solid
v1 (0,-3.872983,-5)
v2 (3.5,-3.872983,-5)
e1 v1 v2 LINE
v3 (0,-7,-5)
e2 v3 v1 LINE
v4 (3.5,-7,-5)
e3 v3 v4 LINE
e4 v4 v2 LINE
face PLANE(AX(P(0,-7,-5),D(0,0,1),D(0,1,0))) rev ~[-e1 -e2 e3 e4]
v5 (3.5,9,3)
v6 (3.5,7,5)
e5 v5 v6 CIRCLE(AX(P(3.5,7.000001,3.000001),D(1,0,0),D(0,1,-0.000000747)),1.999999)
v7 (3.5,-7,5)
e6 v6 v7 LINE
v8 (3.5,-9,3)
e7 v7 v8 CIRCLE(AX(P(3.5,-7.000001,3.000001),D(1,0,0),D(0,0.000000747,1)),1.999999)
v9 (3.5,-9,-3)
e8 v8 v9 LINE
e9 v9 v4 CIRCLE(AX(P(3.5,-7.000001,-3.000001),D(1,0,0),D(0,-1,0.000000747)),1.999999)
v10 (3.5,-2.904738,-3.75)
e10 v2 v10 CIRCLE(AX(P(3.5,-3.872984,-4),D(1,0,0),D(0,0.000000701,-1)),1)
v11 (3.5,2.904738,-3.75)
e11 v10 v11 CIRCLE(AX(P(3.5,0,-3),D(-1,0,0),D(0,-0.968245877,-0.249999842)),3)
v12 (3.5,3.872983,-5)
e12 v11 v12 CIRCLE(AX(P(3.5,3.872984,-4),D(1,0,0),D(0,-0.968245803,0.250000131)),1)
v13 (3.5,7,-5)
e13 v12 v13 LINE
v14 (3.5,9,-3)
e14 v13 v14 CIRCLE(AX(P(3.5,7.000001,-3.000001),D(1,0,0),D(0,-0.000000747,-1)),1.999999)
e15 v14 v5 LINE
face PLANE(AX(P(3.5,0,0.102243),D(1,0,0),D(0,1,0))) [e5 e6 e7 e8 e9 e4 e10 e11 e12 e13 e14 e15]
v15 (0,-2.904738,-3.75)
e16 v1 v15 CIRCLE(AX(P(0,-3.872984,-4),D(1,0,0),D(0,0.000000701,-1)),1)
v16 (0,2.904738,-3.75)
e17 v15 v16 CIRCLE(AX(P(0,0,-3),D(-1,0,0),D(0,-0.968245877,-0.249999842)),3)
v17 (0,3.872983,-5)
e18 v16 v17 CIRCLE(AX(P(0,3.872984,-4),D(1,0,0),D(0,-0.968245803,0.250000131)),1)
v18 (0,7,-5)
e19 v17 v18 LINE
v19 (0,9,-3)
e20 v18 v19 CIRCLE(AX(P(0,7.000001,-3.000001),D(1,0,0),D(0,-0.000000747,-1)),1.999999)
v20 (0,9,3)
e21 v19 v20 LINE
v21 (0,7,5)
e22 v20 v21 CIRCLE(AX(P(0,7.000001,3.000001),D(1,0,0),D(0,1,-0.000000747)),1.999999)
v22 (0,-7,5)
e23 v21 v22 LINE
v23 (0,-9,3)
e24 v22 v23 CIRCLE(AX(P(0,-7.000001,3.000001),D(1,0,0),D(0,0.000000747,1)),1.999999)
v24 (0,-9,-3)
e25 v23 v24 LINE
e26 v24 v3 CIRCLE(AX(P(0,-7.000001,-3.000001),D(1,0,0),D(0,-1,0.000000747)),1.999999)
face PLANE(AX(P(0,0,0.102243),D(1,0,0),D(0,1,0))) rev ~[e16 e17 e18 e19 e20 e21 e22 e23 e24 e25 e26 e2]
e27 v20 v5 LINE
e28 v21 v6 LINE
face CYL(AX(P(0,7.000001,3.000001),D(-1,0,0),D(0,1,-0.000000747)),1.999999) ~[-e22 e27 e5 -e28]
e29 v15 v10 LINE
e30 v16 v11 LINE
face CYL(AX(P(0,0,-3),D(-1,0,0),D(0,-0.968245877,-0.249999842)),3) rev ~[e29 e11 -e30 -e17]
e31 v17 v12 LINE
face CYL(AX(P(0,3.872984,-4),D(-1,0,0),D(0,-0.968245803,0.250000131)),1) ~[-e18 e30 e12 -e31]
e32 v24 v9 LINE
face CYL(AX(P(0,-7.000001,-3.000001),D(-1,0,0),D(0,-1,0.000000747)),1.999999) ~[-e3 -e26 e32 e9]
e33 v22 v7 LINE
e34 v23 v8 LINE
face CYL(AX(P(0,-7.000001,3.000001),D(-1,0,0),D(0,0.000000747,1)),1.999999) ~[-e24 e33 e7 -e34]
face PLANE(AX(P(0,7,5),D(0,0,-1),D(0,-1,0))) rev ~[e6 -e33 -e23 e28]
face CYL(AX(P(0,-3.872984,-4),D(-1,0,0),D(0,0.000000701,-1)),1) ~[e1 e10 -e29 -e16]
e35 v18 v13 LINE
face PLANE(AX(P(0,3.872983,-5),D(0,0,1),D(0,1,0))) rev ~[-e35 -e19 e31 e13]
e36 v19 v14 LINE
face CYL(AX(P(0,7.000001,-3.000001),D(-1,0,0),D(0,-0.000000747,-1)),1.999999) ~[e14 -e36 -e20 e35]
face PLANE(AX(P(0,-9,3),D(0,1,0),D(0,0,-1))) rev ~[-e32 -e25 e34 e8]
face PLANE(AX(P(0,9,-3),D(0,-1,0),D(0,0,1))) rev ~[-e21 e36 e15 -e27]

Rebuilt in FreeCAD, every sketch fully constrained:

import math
import FreeCAD as App
import Part
import Sketcher

V = App.Vector
Q = App.Units.Quantity

doc = App.newDocument("Part")
body = doc.addObject("PartDesign::Body", "Body")

# Sketch on YZ plane
sketch1 = doc.addObject("Sketcher::SketchObject", "Sketch")
body.addObject(sketch1)
sketch1.AttachmentSupport = (doc.YZ_Plane, [""])
sketch1.MapMode = "FlatFace"
sketch1.addGeometry(Part.LineSegment(V(7, 5, 0), V(-7, 5, 0)), False)
sketch1.addGeometry(Part.ArcOfCircle(Part.Circle(V(-7, 3, 0), V(0, 0, 1), 2), math.radians(90), math.radians(180)), False)
sketch1.addGeometry(Part.LineSegment(V(-9, 3, 0), V(-9, -3, 0)), False)
sketch1.addGeometry(Part.ArcOfCircle(Part.Circle(V(-7, -3, 0), V(0, 0, 1), 2), math.radians(180), math.radians(270)), False)
sketch1.addGeometry(Part.LineSegment(V(-7, -5, 0), V(-3.9, -5, 0)), False)
sketch1.addGeometry(Part.ArcOfCircle(Part.Circle(V(-3.9, -4, 0), V(0, 0, 1), 1), math.radians(-90), math.radians(14)), False)
sketch1.addGeometry(Part.ArcOfCircle(Part.Circle(V(0, -3, 0), V(0, 0, 1), 3), math.radians(-14), math.radians(194)), False)
sketch1.addGeometry(Part.ArcOfCircle(Part.Circle(V(3.9, -4, 0), V(0, 0, 1), 1), math.radians(166), math.radians(270)), False)
sketch1.addGeometry(Part.LineSegment(V(3.9, -5, 0), V(7, -5, 0)), False)
sketch1.addGeometry(Part.ArcOfCircle(Part.Circle(V(7, -3, 0), V(0, 0, 1), 2), math.radians(-90), math.radians(0)), False)
sketch1.addGeometry(Part.LineSegment(V(9, -3, 0), V(9, 3, 0)), False)
sketch1.addGeometry(Part.ArcOfCircle(Part.Circle(V(7, 3, 0), V(0, 0, 1), 2), math.radians(0), math.radians(90)), False)
sketch1.addConstraint(Sketcher.Constraint("Tangent", 0, 2, 1, 1))
sketch1.addConstraint(Sketcher.Constraint("Tangent", 1, 2, 2, 1))
sketch1.addConstraint(Sketcher.Constraint("Tangent", 2, 2, 3, 1))
sketch1.addConstraint(Sketcher.Constraint("Tangent", 3, 2, 4, 1))
sketch1.addConstraint(Sketcher.Constraint("Tangent", 4, 2, 5, 1))
sketch1.addConstraint(Sketcher.Constraint("Tangent", 5, 2, 6, 2))
sketch1.addConstraint(Sketcher.Constraint("Tangent", 6, 1, 7, 1))
sketch1.addConstraint(Sketcher.Constraint("Tangent", 7, 2, 8, 1))
sketch1.addConstraint(Sketcher.Constraint("Tangent", 8, 2, 9, 1))
sketch1.addConstraint(Sketcher.Constraint("Tangent", 9, 2, 10, 1))
sketch1.addConstraint(Sketcher.Constraint("Tangent", 10, 2, 11, 1))
sketch1.addConstraint(Sketcher.Constraint("Tangent", 11, 2, 0, 1))
sketch1.addConstraint(Sketcher.Constraint("Horizontal", 0))
sketch1.addConstraint(Sketcher.Constraint("Vertical", 2))
sketch1.addConstraint(Sketcher.Constraint("Horizontal", 4))
sketch1.addConstraint(Sketcher.Constraint("Horizontal", 8))
sketch1.addConstraint(Sketcher.Constraint("Vertical", 10))
sketch1.addConstraint(Sketcher.Constraint("Equal", 1, 3))
sketch1.addConstraint(Sketcher.Constraint("Equal", 5, 7))
sketch1.addConstraint(Sketcher.Constraint("Equal", 3, 9))
sketch1.addConstraint(Sketcher.Constraint("Equal", 9, 11))
sketch1.addConstraint(Sketcher.Constraint("Symmetric", 1, 3, 9, 3, -1, 1))
sketch1.addConstraint(Sketcher.Constraint("Symmetric", 5, 3, 7, 3, -2))
sketch1.addConstraint(Sketcher.Constraint("Horizontal", 3, 3, 6, 3))
sketch1.addConstraint(Sketcher.Constraint("Radius", 1, Q("1.999999 mm")))
sketch1.addConstraint(Sketcher.Constraint("Radius", 5, Q("1 mm")))
sketch1.addConstraint(Sketcher.Constraint("Radius", 6, Q("3 mm")))
sketch1.addConstraint(Sketcher.Constraint("DistanceX", 0, 2, 0, 1, Q("14 mm")))
sketch1.addConstraint(Sketcher.Constraint("DistanceY", 2, 2, 2, 1, Q("6 mm")))
pad1 = doc.addObject("PartDesign::Pad", "Pad")
body.addObject(pad1)
pad1.Profile = sketch1
pad1.Length = 3.5

doc.recompute()
